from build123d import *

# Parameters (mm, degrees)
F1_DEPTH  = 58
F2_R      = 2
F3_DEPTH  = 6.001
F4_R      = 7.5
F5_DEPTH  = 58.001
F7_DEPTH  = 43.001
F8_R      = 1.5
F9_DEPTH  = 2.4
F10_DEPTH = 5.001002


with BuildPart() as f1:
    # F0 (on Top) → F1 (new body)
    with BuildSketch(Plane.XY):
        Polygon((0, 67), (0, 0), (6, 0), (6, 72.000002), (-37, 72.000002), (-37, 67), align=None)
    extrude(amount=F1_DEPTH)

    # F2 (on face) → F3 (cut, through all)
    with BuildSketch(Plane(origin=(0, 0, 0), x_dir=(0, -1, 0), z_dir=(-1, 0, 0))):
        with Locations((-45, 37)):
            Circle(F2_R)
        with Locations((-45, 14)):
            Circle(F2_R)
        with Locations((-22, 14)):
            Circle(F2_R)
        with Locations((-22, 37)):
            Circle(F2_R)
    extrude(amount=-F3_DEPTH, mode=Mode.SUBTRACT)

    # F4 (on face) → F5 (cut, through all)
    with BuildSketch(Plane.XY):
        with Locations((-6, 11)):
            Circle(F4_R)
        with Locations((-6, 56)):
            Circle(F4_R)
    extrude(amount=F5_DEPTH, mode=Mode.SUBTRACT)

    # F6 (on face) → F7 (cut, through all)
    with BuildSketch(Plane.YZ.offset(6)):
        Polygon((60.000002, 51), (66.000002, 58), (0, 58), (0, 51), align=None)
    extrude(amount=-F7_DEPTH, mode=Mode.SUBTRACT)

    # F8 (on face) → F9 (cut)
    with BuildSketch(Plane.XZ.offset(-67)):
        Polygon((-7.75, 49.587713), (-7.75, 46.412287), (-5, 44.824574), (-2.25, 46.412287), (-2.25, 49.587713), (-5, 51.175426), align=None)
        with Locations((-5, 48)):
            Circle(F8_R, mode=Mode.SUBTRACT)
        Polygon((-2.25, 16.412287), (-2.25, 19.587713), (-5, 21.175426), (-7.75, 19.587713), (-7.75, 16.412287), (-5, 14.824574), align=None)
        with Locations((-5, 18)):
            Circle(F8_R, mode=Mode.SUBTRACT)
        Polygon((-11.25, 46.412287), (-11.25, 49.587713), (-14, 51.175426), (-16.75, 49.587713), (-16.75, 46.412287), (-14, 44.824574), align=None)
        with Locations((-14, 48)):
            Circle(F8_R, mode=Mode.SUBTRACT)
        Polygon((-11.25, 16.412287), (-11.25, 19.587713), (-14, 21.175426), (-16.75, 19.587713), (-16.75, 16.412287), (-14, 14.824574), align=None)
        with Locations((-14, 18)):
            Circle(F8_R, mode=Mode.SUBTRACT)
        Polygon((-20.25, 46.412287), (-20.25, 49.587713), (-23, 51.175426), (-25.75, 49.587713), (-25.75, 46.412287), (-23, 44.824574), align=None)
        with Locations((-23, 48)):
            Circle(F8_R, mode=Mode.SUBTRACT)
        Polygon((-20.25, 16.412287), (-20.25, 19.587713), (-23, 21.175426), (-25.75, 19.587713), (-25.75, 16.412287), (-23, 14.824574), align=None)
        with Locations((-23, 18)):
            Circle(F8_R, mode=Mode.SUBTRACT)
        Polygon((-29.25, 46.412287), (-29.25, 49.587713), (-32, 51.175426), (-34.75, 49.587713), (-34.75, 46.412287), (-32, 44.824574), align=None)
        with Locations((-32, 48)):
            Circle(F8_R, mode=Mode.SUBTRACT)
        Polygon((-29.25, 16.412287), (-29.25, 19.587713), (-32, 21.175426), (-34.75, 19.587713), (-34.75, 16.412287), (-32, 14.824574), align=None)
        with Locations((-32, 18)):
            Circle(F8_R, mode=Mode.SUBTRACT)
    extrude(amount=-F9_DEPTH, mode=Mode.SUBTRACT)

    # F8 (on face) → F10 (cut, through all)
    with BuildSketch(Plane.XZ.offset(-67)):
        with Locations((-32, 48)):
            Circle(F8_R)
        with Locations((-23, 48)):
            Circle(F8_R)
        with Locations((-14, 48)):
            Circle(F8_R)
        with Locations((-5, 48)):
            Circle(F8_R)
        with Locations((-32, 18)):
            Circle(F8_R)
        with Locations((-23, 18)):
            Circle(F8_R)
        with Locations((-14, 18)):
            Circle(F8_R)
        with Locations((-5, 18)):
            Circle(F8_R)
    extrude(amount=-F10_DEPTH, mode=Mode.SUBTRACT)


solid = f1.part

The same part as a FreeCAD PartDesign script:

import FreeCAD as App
import Part
import Sketcher
from FreeCAD import Vector
Q = App.Units.Quantity


def add_polygon(sketch, points):
    """Adds a closed chain of lines whose ends are joined by coincident constraints."""
    first, n = sketch.GeometryCount, len(points)
    for a, b in zip(points, points[1:] + points[:1]):
        sketch.addGeometry(Part.LineSegment(App.Vector(*a, 0), App.Vector(*b, 0)), False)
    for i in range(n):
        sketch.addConstraint(Sketcher.Constraint("Coincident", first + i, 2, first + (i + 1) % n, 1))

doc = App.newDocument("Part")
body = doc.addObject("PartDesign::Body", "Body")

# Sketch on XY plane
sketch1 = body.newObject("Sketcher::SketchObject", "Sketch")
sketch1.AttachmentSupport = (doc.getObject("XY_Plane"), [""])
sketch1.MapMode = "FlatFace"
add_polygon(sketch1, [(0, 67), (0, 0), (6, 0), (6, 72.000002), (-37, 72.000002), (-37, 67)])  # lines 0-5
sketch1.addConstraint(Sketcher.Constraint("Vertical", 0))
sketch1.addConstraint(Sketcher.Constraint("Horizontal", 1))
sketch1.addConstraint(Sketcher.Constraint("Vertical", 2))
sketch1.addConstraint(Sketcher.Constraint("Horizontal", 3))
sketch1.addConstraint(Sketcher.Constraint("Vertical", 4))
sketch1.addConstraint(Sketcher.Constraint("Horizontal", 5))
sketch1.addConstraint(Sketcher.Constraint("Coincident", 0, 2, -1, 1))
sketch1.addConstraint(Sketcher.Constraint("DistanceX", 1, 1, 1, 2, Q("6 mm")))
sketch1.addConstraint(Sketcher.Constraint("DistanceX", 3, 2, 3, 1, Q("43 mm")))
sketch1.addConstraint(Sketcher.Constraint("DistanceY", 0, 2, 0, 1, Q("67 mm")))
sketch1.addConstraint(Sketcher.Constraint("DistanceY", 2, 1, 2, 2, Q("72.000002 mm")))
pad1 = body.newObject("PartDesign::Pad", "Pad")
pad1.Profile = sketch1
pad1.Length = 58

# Sketch on YZ plane
sketch2 = body.newObject("Sketcher::SketchObject", "Sketch001")
sketch2.AttachmentSupport = (doc.getObject("YZ_Plane"), [""])
sketch2.MapMode = "FlatFace"
sketch2.addGeometry(Part.Circle(Vector(45, 37, 0), Vector(0, 0, 1), 2), False)
sketch2.addGeometry(Part.Circle(Vector(45, 14, 0), Vector(0, 0, 1), 2), False)
sketch2.addGeometry(Part.Circle(Vector(22, 14, 0), Vector(0, 0, 1), 2), False)
sketch2.addGeometry(Part.Circle(Vector(22, 37, 0), Vector(0, 0, 1), 2), False)
sketch2.addConstraint(Sketcher.Constraint("Equal", 0, 1))
sketch2.addConstraint(Sketcher.Constraint("Equal", 1, 2))
sketch2.addConstraint(Sketcher.Constraint("Equal", 2, 3))
sketch2.addConstraint(Sketcher.Constraint("Horizontal", 1, 3, 2, 3))
sketch2.addConstraint(Sketcher.Constraint("Horizontal", 0, 3, 3, 3))
sketch2.addConstraint(Sketcher.Constraint("Vertical", 0, 3, 1, 3))
sketch2.addConstraint(Sketcher.Constraint("Vertical", 2, 3, 3, 3))
sketch2.addConstraint(Sketcher.Constraint("Diameter", 0, Q("4 mm")))
sketch2.addConstraint(Sketcher.Constraint("DistanceX", -1, 1, 0, 3, Q("45 mm")))
sketch2.addConstraint(Sketcher.Constraint("DistanceY", -1, 1, 0, 3, Q("37 mm")))
sketch2.addConstraint(Sketcher.Constraint("DistanceY", -1, 1, 1, 3, Q("14 mm")))
sketch2.addConstraint(Sketcher.Constraint("DistanceX", -1, 1, 2, 3, Q("22 mm")))
pocket1 = body.newObject("PartDesign::Pocket", "Pocket")
pocket1.Profile = sketch2
pocket1.Type = "ThroughAll"
pocket1.Reversed = True

# Sketch on XY plane
sketch3 = body.newObject("Sketcher::SketchObject", "Sketch002")
sketch3.AttachmentSupport = (doc.getObject("XY_Plane"), [""])
sketch3.MapMode = "FlatFace"
sketch3.addGeometry(Part.Circle(Vector(-6, 11, 0), Vector(0, 0, 1), 7.5), False)
sketch3.addGeometry(Part.Circle(Vector(-6, 56, 0), Vector(0, 0, 1), 7.5), False)
sketch3.addConstraint(Sketcher.Constraint("Equal", 0, 1))
sketch3.addConstraint(Sketcher.Constraint("Vertical", 0, 3, 1, 3))
sketch3.addConstraint(Sketcher.Constraint("Diameter", 0, Q("15 mm")))
sketch3.addConstraint(Sketcher.Constraint("DistanceX", 0, 3, -1, 1, Q("6 mm")))
sketch3.addConstraint(Sketcher.Constraint("DistanceY", -1, 1, 0, 3, Q("11 mm")))
sketch3.addConstraint(Sketcher.Constraint("DistanceY", -1, 1, 1, 3, Q("56 mm")))
pocket2 = body.newObject("PartDesign::Pocket", "Pocket001")
pocket2.Profile = sketch3
pocket2.Type = "ThroughAll"
pocket2.Reversed = True

# Sketch on YZ plane
sketch4 = body.newObject("Sketcher::SketchObject", "Sketch003")
sketch4.AttachmentSupport = (doc.getObject("YZ_Plane"), [""])
sketch4.MapMode = "FlatFace"
sketch4.AttachmentOffset = App.Placement(Vector(0, 0, 6), App.Rotation())
add_polygon(sketch4, [(60.000002, 51), (66.000002, 58), (0, 58), (0, 51)])  # lines 0-3
sketch4.addConstraint(Sketcher.Constraint("Horizontal", 1))
sketch4.addConstraint(Sketcher.Constraint("Vertical", 2))
sketch4.addConstraint(Sketcher.Constraint("Horizontal", 3))
sketch4.addConstraint(Sketcher.Constraint("PointOnObject", 1, 2, -2))
sketch4.addConstraint(Sketcher.Constraint("DistanceX", 1, 2, 1, 1, Q("66.000002 mm")))
sketch4.addConstraint(Sketcher.Constraint("DistanceY", 2, 2, 2, 1, Q("7 mm")))
sketch4.addConstraint(Sketcher.Constraint("DistanceY", -1, 1, 0, 2, Q("58 mm")))
sketch4.addConstraint(Sketcher.Constraint("DistanceX", 3, 2, 0, 2, Q("6 mm")))
pocket3 = body.newObject("PartDesign::Pocket", "Pocket002")
pocket3.Profile = sketch4
pocket3.Type = "ThroughAll"

# Sketch on XZ plane
sketch5 = body.newObject("Sketcher::SketchObject", "Sketch004")
sketch5.AttachmentSupport = (doc.getObject("XZ_Plane"), [""])
sketch5.MapMode = "FlatFace"
sketch5.AttachmentOffset = App.Placement(Vector(0, 0, -67), App.Rotation())
add_polygon(sketch5, [(-7.75, 49.587713), (-7.75, 46.412287), (-5, 44.824574), (-2.25, 46.412287), (-2.25, 49.587713), (-5, 51.175426)])  # lines 0-5
sketch5.addGeometry(Part.Circle(Vector(-5, 48, 0), Vector(0, 0, 1), 1.5), False)  # 6
add_polygon(sketch5, [(-2.25, 16.412287), (-2.25, 19.587713), (-5, 21.175426), (-7.75, 19.587713), (-7.75, 16.412287), (-5, 14.824574)])  # lines 7-12
sketch5.addGeometry(Part.Circle(Vector(-5, 18, 0), Vector(0, 0, 1), 1.5), False)  # 13
add_polygon(sketch5, [(-11.25, 46.412287), (-11.25, 49.587713), (-14, 51.175426), (-16.75, 49.587713), (-16.75, 46.412287), (-14, 44.824574)])  # lines 14-19
sketch5.addGeometry(Part.Circle(Vector(-14, 48, 0), Vector(0, 0, 1), 1.5), False)  # 20
add_polygon(sketch5, [(-11.25, 16.412287), (-11.25, 19.587713), (-14, 21.175426), (-16.75, 19.587713), (-16.75, 16.412287), (-14, 14.824574)])  # lines 21-26
sketch5.addGeometry(Part.Circle(Vector(-14, 18, 0), Vector(0, 0, 1), 1.5), False)  # 27
add_polygon(sketch5, [(-20.25, 46.412287), (-20.25, 49.587713), (-23, 51.175426), (-25.75, 49.587713), (-25.75, 46.412287), (-23, 44.824574)])  # lines 28-33
sketch5.addGeometry(Part.Circle(Vector(-23, 48, 0), Vector(0, 0, 1), 1.5), False)  # 34
add_polygon(sketch5, [(-20.25, 16.412287), (-20.25, 19.587713), (-23, 21.175426), (-25.75, 19.587713), (-25.75, 16.412287), (-23, 14.824574)])  # lines 35-40
sketch5.addGeometry(Part.Circle(Vector(-23, 18, 0), Vector(0, 0, 1), 1.5), False)  # 41
add_polygon(sketch5, [(-29.25, 46.412287), (-29.25, 49.587713), (-32, 51.175426), (-34.75, 49.587713), (-34.75, 46.412287), (-32, 44.824574)])  # lines 42-47
sketch5.addGeometry(Part.Circle(Vector(-32, 48, 0), Vector(0, 0, 1), 1.5), False)  # 48
add_polygon(sketch5, [(-29.25, 16.412287), (-29.25, 19.587713), (-32, 21.175426), (-34.75, 19.587713), (-34.75, 16.412287), (-32, 14.824574)])  # lines 49-54
sketch5.addGeometry(Part.Circle(Vector(-32, 18, 0), Vector(0, 0, 1), 1.5), False)  # 55
sketch5.addConstraint(Sketcher.Constraint("Vertical", 0))
sketch5.addConstraint(Sketcher.Constraint("Vertical", 3))
sketch5.addConstraint(Sketcher.Constraint("Vertical", 7))
sketch5.addConstraint(Sketcher.Constraint("Vertical", 10))
sketch5.addConstraint(Sketcher.Constraint("Vertical", 14))
sketch5.addConstraint(Sketcher.Constraint("Vertical", 17))
sketch5.addConstraint(Sketcher.Constraint("Vertical", 21))
sketch5.addConstraint(Sketcher.Constraint("Vertical", 24))
sketch5.addConstraint(Sketcher.Constraint("Vertical", 28))
sketch5.addConstraint(Sketcher.Constraint("Vertical", 31))
sketch5.addConstraint(Sketcher.Constraint("Vertical", 35))
sketch5.addConstraint(Sketcher.Constraint("Vertical", 38))
sketch5.addConstraint(Sketcher.Constraint("Vertical", 42))
sketch5.addConstraint(Sketcher.Constraint("Vertical", 45))
sketch5.addConstraint(Sketcher.Constraint("Vertical", 49))
sketch5.addConstraint(Sketcher.Constraint("Vertical", 52))
sketch5.addConstraint(Sketcher.Constraint("Equal", 6, 13))
sketch5.addConstraint(Sketcher.Constraint("Equal", 13, 20))
sketch5.addConstraint(Sketcher.Constraint("Equal", 20, 27))
sketch5.addConstraint(Sketcher.Constraint("Equal", 27, 34))
sketch5.addConstraint(Sketcher.Constraint("Equal", 34, 41))
sketch5.addConstraint(Sketcher.Constraint("Equal", 41, 48))
sketch5.addConstraint(Sketcher.Constraint("Equal", 48, 55))
sketch5.addConstraint(Sketcher.Constraint("Parallel", 1, 4))
sketch5.addConstraint(Sketcher.Constraint("Parallel", 2, 5))
sketch5.addConstraint(Sketcher.Constraint("Parallel", 4, 8))
sketch5.addConstraint(Sketcher.Constraint("Parallel", 5, 9))
sketch5.addConstraint(Sketcher.Constraint("Parallel", 8, 11))
sketch5.addConstraint(Sketcher.Constraint("Parallel", 9, 12))
sketch5.addConstraint(Sketcher.Constraint("Parallel", 11, 15))
sketch5.addConstraint(Sketcher.Constraint("Parallel", 12, 16))
sketch5.addConstraint(Sketcher.Constraint("Parallel", 15, 18))
sketch5.addConstraint(Sketcher.Constraint("Parallel", 16, 19))
sketch5.addConstraint(Sketcher.Constraint("Parallel", 18, 22))
sketch5.addConstraint(Sketcher.Constraint("Parallel", 19, 23))
sketch5.addConstraint(Sketcher.Constraint("Parallel", 22, 25))
sketch5.addConstraint(Sketcher.Constraint("Parallel", 23, 26))
sketch5.addConstraint(Sketcher.Constraint("Parallel", 25, 29))
sketch5.addConstraint(Sketcher.Constraint("Parallel", 26, 30))
sketch5.addConstraint(Sketcher.Constraint("Parallel", 29, 32))
sketch5.addConstraint(Sketcher.Constraint("Parallel", 30, 33))
sketch5.addConstraint(Sketcher.Constraint("Parallel", 32, 36))
sketch5.addConstraint(Sketcher.Constraint("Parallel", 33, 37))
sketch5.addConstraint(Sketcher.Constraint("Parallel", 36, 39))
sketch5.addConstraint(Sketcher.Constraint("Parallel", 37, 40))
sketch5.addConstraint(Sketcher.Constraint("Parallel", 39, 43))
sketch5.addConstraint(Sketcher.Constraint("Parallel", 40, 44))
sketch5.addConstraint(Sketcher.Constraint("Parallel", 43, 46))
sketch5.addConstraint(Sketcher.Constraint("Parallel", 44, 47))
sketch5.addConstraint(Sketcher.Constraint("Parallel", 46, 50))
sketch5.addConstraint(Sketcher.Constraint("Parallel", 47, 51))
sketch5.addConstraint(Sketcher.Constraint("Parallel", 50, 53))
sketch5.addConstraint(Sketcher.Constraint("Parallel", 51, 54))
sketch5.addConstraint(Sketcher.Constraint("Horizontal", 6, 3, 20, 3))
sketch5.addConstraint(Sketcher.Constraint("Horizontal", 13, 3, 27, 3))
sketch5.addConstraint(Sketcher.Constraint("Horizontal", 20, 3, 34, 3))
sketch5.addConstraint(Sketcher.Constraint("Horizontal", 27, 3, 41, 3))
sketch5.addConstraint(Sketcher.Constraint("Horizontal", 34, 3, 48, 3))
sketch5.addConstraint(Sketcher.Constraint("Horizontal", 41, 3, 55, 3))
sketch5.addConstraint(Sketcher.Constraint("Horizontal", 0, 2, 2, 2))
sketch5.addConstraint(Sketcher.Constraint("Horizontal", 3, 2, 5, 2))
sketch5.addConstraint(Sketcher.Constraint("Horizontal", 7, 2, 9, 2))
sketch5.addConstraint(Sketcher.Constraint("Horizontal", 10, 2, 12, 2))
sketch5.addConstraint(Sketcher.Constraint("Horizontal", 5, 2, 14, 2))
sketch5.addConstraint(Sketcher.Constraint("Horizontal", 4, 2, 15, 2))
sketch5.addConstraint(Sketcher.Constraint("Horizontal", 14, 2, 16, 2))
sketch5.addConstraint(Sketcher.Constraint("Horizontal", 2, 2, 17, 2))
sketch5.addConstraint(Sketcher.Constraint("Horizontal", 1, 2, 18, 2))
sketch5.addConstraint(Sketcher.Constraint("Horizontal", 9, 2, 21, 2))
sketch5.addConstraint(Sketcher.Constraint("Horizontal", 8, 2, 22, 2))
sketch5.addConstraint(Sketcher.Constraint("Horizontal", 21, 2, 23, 2))
sketch5.addConstraint(Sketcher.Constraint("Horizontal", 12, 2, 24, 2))
sketch5.addConstraint(Sketcher.Constraint("Horizontal", 11, 2, 25, 2))
sketch5.addConstraint(Sketcher.Constraint("Horizontal", 16, 2, 28, 2))
sketch5.addConstraint(Sketcher.Constraint("Horizontal", 15, 2, 29, 2))
sketch5.addConstraint(Sketcher.Constraint("Horizontal", 28, 2, 30, 2))
sketch5.addConstraint(Sketcher.Constraint("Horizontal", 19, 2, 31, 2))
sketch5.addConstraint(Sketcher.Constraint("Horizontal", 18, 2, 32, 2))
sketch5.addConstraint(Sketcher.Constraint("Horizontal", 23, 2, 35, 2))
sketch5.addConstraint(Sketcher.Constraint("Horizontal", 22, 2, 36, 2))
sketch5.addConstraint(Sketcher.Constraint("Horizontal", 35, 2, 37, 2))
sketch5.addConstraint(Sketcher.Constraint("Horizontal", 26, 2, 38, 2))
sketch5.addConstraint(Sketcher.Constraint("Horizontal", 25, 2, 39, 2))
sketch5.addConstraint(Sketcher.Constraint("Horizontal", 30, 2, 42, 2))
sketch5.addConstraint(Sketcher.Constraint("Horizontal", 29, 2, 43, 2))
sketch5.addConstraint(Sketcher.Constraint("Horizontal", 42, 2, 44, 2))
sketch5.addConstraint(Sketcher.Constraint("Horizontal", 33, 2, 45, 2))
sketch5.addConstraint(Sketcher.Constraint("Horizontal", 32, 2, 46, 2))
sketch5.addConstraint(Sketcher.Constraint("Horizontal", 37, 2, 49, 2))
sketch5.addConstraint(Sketcher.Constraint("Horizontal", 36, 2, 50, 2))
sketch5.addConstraint(Sketcher.Constraint("Horizontal", 49, 2, 51, 2))
sketch5.addConstraint(Sketcher.Constraint("Horizontal", 40, 2, 52, 2))
sketch5.addConstraint(Sketcher.Constraint("Horizontal", 39, 2, 53, 2))
sketch5.addConstraint(Sketcher.Constraint("Vertical", 6, 3, 13, 3))
sketch5.addConstraint(Sketcher.Constraint("Vertical", 20, 3, 27, 3))
sketch5.addConstraint(Sketcher.Constraint("Vertical", 34, 3, 41, 3))
sketch5.addConstraint(Sketcher.Constraint("Vertical", 48, 3, 55, 3))
sketch5.addConstraint(Sketcher.Constraint("Vertical", 13, 3, 1, 2))
sketch5.addConstraint(Sketcher.Constraint("Vertical", 1, 2, 4, 2))
sketch5.addConstraint(Sketcher.Constraint("Vertical", 3, 2, 7, 2))
sketch5.addConstraint(Sketcher.Constraint("Vertical", 4, 2, 8, 2))
sketch5.addConstraint(Sketcher.Constraint("Vertical", 27, 3, 15, 2))
sketch5.addConstraint(Sketcher.Constraint("Vertical", 19, 2, 21, 2))
sketch5.addConstraint(Sketcher.Constraint("Vertical", 41, 3, 29, 2))
sketch5.addConstraint(Sketcher.Constraint("Vertical", 33, 2, 35, 2))
sketch5.addConstraint(Sketcher.Constraint("Vertical", 55, 3, 43, 2))
sketch5.addConstraint(Sketcher.Constraint("Vertical", 47, 2, 49, 2))
sketch5.addConstraint(Sketcher.Constraint("Equal", 3, 7))
sketch5.addConstraint(Sketcher.Constraint("Diameter", 6, Q("3 mm")))
sketch5.addConstraint(Sketcher.Constraint("Angle", 1, Q("-29.999996 deg")))
sketch5.addConstraint(Sketcher.Constraint("DistanceX", 6, 3, -1, 1, Q("5 mm")))
sketch5.addConstraint(Sketcher.Constraint("DistanceY", -1, 1, 6, 3, Q("48 mm")))
sketch5.addConstraint(Sketcher.Constraint("DistanceY", -1, 1, 13, 3, Q("18 mm")))
sketch5.addConstraint(Sketcher.Constraint("DistanceX", 20, 3, -1, 1, Q("14 mm")))
sketch5.addConstraint(Sketcher.Constraint("DistanceX", 34, 3, -1, 1, Q("23 mm")))
sketch5.addConstraint(Sketcher.Constraint("DistanceX", 48, 3, -1, 1, Q("32 mm")))
sketch5.addConstraint(Sketcher.Constraint("DistanceX", 0, 2, 2, 2, Q("5.5 mm")))
sketch5.addConstraint(Sketcher.Constraint("DistanceY", 0, 2, 0, 1, Q("3.175426 mm")))
sketch5.addConstraint(Sketcher.Constraint("DistanceY", 7, 2, 1, 2, Q("25.236861 mm")))
sketch5.addConstraint(Sketcher.Constraint("DistanceY", -1, 1, 0, 2, Q("46.412287 mm")))
pocket4 = body.newObject("PartDesign::Pocket", "Pocket003")
pocket4.Profile = sketch5
pocket4.Length = 2.4

# Sketch on XZ plane
sketch6 = body.newObject("Sketcher::SketchObject", "Sketch005")
sketch6.AttachmentSupport = (doc.getObject("XZ_Plane"), [""])
sketch6.MapMode = "FlatFace"
sketch6.AttachmentOffset = App.Placement(Vector(0, 0, -67), App.Rotation())
sketch6.addGeometry(Part.Circle(Vector(-32, 48, 0), Vector(0, 0, 1), 1.5), False)
sketch6.addGeometry(Part.Circle(Vector(-23, 48, 0), Vector(0, 0, 1), 1.5), False)
sketch6.addGeometry(Part.Circle(Vector(-14, 48, 0), Vector(0, 0, 1), 1.5), False)
sketch6.addGeometry(Part.Circle(Vector(-5, 48, 0), Vector(0, 0, 1), 1.5), False)
sketch6.addGeometry(Part.Circle(Vector(-32, 18, 0), Vector(0, 0, 1), 1.5), False)
sketch6.addGeometry(Part.Circle(Vector(-23, 18, 0), Vector(0, 0, 1), 1.5), False)
sketch6.addGeometry(Part.Circle(Vector(-14, 18, 0), Vector(0, 0, 1), 1.5), False)
sketch6.addGeometry(Part.Circle(Vector(-5, 18, 0), Vector(0, 0, 1), 1.5), False)
sketch6.addConstraint(Sketcher.Constraint("Equal", 0, 1))
sketch6.addConstraint(Sketcher.Constraint("Equal", 1, 2))
sketch6.addConstraint(Sketcher.Constraint("Equal", 2, 3))
sketch6.addConstraint(Sketcher.Constraint("Equal", 3, 4))
sketch6.addConstraint(Sketcher.Constraint("Equal", 4, 5))
sketch6.addConstraint(Sketcher.Constraint("Equal", 5, 6))
sketch6.addConstraint(Sketcher.Constraint("Equal", 6, 7))
sketch6.addConstraint(Sketcher.Constraint("Horizontal", 0, 3, 1, 3))
sketch6.addConstraint(Sketcher.Constraint("Horizontal", 1, 3, 2, 3))
sketch6.addConstraint(Sketcher.Constraint("Horizontal", 2, 3, 3, 3))
sketch6.addConstraint(Sketcher.Constraint("Horizontal", 4, 3, 5, 3))
sketch6.addConstraint(Sketcher.Constraint("Horizontal", 5, 3, 6, 3))
sketch6.addConstraint(Sketcher.Constraint("Horizontal", 6, 3, 7, 3))
sketch6.addConstraint(Sketcher.Constraint("Vertical", 0, 3, 4, 3))
sketch6.addConstraint(Sketcher.Constraint("Vertical", 1, 3, 5, 3))
sketch6.addConstraint(Sketcher.Constraint("Vertical", 2, 3, 6, 3))
sketch6.addConstraint(Sketcher.Constraint("Vertical", 3, 3, 7, 3))
sketch6.addConstraint(Sketcher.Constraint("Diameter", 0, Q("3 mm")))
sketch6.addConstraint(Sketcher.Constraint("DistanceX", 0, 3, -1, 1, Q("32 mm")))
sketch6.addConstraint(Sketcher.Constraint("DistanceY", -1, 1, 0, 3, Q("48 mm")))
sketch6.addConstraint(Sketcher.Constraint("DistanceX", 1, 3, -1, 1, Q("23 mm")))
sketch6.addConstraint(Sketcher.Constraint("DistanceX", 2, 3, -1, 1, Q("14 mm")))
sketch6.addConstraint(Sketcher.Constraint("DistanceX", 3, 3, -1, 1, Q("5 mm")))
sketch6.addConstraint(Sketcher.Constraint("DistanceY", -1, 1, 4, 3, Q("18 mm")))
pocket5 = body.newObject("PartDesign::Pocket", "Pocket004")
pocket5.Profile = sketch6
pocket5.Type = "ThroughAll"

doc.recompute()
